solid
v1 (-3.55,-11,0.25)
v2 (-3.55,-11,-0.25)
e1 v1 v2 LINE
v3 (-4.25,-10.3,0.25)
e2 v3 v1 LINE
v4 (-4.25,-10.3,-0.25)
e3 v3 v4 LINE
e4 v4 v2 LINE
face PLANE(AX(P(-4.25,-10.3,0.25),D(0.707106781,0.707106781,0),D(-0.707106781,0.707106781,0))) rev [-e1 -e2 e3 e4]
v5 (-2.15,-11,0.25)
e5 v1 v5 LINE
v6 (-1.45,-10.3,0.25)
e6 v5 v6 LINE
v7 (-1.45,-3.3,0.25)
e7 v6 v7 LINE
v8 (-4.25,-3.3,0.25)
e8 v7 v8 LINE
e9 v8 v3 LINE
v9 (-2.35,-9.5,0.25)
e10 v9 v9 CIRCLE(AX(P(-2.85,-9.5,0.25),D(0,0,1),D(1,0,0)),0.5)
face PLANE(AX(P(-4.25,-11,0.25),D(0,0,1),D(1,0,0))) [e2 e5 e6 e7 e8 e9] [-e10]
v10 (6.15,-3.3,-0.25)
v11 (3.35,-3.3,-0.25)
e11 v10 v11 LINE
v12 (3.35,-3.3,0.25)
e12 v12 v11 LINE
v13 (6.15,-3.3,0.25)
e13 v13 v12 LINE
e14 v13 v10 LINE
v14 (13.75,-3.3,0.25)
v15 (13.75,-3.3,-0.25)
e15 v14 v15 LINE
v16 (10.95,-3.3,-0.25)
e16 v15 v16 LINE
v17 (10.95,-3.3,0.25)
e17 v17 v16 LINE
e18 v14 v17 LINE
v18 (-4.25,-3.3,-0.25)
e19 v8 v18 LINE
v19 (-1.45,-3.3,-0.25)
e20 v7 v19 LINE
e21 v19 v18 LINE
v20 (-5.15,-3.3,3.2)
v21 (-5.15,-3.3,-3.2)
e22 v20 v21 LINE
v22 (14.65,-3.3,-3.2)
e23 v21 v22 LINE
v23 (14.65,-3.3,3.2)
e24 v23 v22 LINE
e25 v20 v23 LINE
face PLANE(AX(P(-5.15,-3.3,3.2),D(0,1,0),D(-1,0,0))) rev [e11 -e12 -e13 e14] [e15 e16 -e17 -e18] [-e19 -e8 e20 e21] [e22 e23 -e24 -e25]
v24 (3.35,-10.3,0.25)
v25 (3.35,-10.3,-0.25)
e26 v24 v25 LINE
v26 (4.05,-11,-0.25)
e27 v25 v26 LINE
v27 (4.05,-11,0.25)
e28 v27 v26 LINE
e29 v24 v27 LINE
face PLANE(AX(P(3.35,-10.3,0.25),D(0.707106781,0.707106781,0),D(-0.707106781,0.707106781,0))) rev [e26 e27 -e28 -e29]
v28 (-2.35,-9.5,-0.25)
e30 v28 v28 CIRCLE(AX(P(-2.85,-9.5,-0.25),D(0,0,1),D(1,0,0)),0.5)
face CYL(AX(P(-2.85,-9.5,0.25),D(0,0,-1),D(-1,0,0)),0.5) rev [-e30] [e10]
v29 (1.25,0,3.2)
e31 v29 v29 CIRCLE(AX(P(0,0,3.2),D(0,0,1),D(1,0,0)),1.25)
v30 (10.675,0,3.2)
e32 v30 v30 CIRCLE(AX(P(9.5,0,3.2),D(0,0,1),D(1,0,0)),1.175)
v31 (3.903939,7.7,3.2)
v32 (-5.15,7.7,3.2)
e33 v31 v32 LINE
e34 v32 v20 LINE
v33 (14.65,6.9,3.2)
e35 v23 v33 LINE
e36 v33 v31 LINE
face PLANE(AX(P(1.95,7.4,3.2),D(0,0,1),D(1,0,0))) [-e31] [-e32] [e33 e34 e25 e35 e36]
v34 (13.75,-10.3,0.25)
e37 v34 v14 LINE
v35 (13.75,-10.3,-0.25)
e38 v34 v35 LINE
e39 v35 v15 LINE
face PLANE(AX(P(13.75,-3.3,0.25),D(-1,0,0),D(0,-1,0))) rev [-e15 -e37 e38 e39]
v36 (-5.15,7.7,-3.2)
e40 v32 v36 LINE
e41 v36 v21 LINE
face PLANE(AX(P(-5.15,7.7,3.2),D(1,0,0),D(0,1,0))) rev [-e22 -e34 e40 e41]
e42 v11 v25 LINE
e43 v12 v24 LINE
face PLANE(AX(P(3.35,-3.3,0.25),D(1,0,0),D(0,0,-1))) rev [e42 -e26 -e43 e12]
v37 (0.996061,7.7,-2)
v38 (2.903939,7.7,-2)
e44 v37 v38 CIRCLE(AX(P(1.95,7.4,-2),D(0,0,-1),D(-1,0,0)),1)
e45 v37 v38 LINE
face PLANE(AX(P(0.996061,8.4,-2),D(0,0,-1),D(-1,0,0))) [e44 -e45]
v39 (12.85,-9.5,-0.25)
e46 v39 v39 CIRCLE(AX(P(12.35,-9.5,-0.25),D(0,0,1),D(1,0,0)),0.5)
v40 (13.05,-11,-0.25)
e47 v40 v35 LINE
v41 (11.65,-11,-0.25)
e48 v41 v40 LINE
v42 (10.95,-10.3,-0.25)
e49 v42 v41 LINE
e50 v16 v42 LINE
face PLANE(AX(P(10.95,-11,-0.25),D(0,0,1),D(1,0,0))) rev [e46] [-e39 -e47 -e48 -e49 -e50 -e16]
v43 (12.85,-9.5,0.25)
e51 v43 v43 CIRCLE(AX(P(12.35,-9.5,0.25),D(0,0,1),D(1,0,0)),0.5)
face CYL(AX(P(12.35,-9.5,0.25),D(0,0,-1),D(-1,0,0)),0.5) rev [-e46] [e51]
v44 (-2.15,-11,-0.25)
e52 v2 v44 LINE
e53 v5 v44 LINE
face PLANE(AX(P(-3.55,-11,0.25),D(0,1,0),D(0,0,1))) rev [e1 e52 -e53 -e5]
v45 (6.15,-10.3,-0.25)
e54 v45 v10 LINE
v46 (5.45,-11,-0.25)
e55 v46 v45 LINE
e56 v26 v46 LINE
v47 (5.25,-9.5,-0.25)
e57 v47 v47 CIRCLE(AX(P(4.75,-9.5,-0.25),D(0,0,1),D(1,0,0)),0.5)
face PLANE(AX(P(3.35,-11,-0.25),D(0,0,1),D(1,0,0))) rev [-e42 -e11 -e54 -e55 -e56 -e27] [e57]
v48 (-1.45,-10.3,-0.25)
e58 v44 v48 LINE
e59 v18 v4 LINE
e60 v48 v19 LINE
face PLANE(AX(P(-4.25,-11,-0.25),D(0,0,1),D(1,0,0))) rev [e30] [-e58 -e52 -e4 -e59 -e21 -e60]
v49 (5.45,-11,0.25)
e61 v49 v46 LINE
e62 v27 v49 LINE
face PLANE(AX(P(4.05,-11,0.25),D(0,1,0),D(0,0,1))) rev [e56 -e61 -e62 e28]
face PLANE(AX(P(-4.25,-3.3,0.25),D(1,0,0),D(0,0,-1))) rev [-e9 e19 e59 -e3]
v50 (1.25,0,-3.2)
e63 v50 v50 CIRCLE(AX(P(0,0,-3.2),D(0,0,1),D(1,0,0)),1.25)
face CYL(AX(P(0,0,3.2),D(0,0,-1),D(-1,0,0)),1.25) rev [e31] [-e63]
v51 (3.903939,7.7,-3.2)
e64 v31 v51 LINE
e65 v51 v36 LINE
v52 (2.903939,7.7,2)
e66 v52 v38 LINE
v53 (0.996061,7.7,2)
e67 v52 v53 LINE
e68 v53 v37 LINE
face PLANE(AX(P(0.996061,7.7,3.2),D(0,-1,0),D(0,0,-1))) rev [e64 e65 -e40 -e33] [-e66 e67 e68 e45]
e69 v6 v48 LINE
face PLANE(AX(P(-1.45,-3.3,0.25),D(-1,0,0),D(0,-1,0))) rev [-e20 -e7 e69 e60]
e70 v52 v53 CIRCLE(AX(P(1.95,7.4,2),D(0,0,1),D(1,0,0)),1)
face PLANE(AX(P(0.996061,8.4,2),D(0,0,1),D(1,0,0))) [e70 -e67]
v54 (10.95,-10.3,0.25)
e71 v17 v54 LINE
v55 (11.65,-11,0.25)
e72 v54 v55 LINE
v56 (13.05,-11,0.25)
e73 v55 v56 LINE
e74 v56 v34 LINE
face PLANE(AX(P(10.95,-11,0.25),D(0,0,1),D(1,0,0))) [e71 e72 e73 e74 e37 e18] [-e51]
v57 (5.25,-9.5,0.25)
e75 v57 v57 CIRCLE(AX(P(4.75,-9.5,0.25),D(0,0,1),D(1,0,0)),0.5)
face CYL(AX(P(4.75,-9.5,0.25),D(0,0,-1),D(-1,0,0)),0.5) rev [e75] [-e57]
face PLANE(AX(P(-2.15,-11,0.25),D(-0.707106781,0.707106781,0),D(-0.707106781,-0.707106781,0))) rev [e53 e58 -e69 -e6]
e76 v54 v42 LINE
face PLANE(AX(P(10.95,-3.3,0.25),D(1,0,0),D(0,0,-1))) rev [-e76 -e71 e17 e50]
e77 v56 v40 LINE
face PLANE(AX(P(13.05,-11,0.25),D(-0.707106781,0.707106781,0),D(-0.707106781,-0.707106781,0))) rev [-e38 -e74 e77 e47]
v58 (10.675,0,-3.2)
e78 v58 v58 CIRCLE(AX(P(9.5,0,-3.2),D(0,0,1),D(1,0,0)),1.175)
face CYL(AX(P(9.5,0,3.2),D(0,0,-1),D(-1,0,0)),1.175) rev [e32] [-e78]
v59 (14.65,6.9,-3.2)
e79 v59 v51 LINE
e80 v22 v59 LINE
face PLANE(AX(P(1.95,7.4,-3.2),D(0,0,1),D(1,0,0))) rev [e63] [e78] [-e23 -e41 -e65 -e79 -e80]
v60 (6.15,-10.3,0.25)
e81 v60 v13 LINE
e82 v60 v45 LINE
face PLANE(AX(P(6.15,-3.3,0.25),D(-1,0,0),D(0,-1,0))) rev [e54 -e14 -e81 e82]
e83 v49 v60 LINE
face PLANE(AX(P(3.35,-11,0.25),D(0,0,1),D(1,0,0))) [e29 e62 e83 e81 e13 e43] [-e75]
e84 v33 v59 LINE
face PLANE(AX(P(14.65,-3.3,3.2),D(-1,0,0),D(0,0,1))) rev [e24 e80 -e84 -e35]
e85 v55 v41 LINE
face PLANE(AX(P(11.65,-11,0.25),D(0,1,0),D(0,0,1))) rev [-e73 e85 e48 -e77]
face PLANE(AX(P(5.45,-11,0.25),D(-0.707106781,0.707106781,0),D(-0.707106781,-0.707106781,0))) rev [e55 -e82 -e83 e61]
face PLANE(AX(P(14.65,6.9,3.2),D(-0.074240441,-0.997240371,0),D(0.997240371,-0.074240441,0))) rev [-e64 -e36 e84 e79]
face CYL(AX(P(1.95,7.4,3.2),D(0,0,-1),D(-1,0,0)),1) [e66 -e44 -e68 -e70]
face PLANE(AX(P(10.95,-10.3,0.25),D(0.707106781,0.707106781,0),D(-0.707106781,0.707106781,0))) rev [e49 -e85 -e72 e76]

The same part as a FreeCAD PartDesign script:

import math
import FreeCAD as App
import Part
import Sketcher

V = App.Vector


def add_polygon(sketch, points):
    """Adds a closed chain of lines whose ends are joined by coincident constraints."""
    first, n = sketch.GeometryCount, len(points)
    for a, b in zip(points, points[1:] + points[:1]):
        sketch.addGeometry(Part.LineSegment(App.Vector(*a, 0), App.Vector(*b, 0)), False)
    for i in range(n):
        sketch.addConstraint(Sketcher.Constraint("Coincident", first + i, 2, first + (i + 1) % n, 1))

doc = App.newDocument("Part")
params = doc.addObject("Spreadsheet::Sheet", "Params")
for row, (alias, value) in enumerate([
    ("sketch1_radius", "1 mm"),
    ("sketch1_diameter", "2.5 mm"),
    ("sketch1_diameter2", "2.35 mm"),
    ("sketch1_width", "1 mm"),
    ("sketch1_height", "11 mm"),
    ("pad1_length", "6.4 mm"),
    ("sketch2_diameter", "1 mm"),
    ("sketch2_height", "7 mm"),
    ("sketch2_width", "2.8 mm"),
    ("sketch2_width2", "1.4 mm"),
    ("pad2_length", "0.5 mm"),
    ("sketch3_height", "1.2 mm"),
], start=1):
    params.set(f"A{row}", alias)
    params.set(f"B{row}", "=" + value)
    params.setAlias(f"B{row}", alias)

body = doc.addObject("PartDesign::Body", "Body")

sketch1 = doc.addObject("Sketcher::SketchObject", "Sketch")
body.addObject(sketch1)
sketch1.AttachmentSupport = (doc.XY_Plane, [""])
sketch1.MapMode = "FlatFace"
sketch1.addGeometry([
    Part.LineSegment(V(-5.15, -3.3, 0), V(14.65, -3.3, 0)),
    Part.LineSegment(V(14.65, -3.3, 0), V(14.65, 6.9, 0)),
    Part.LineSegment(V(14.65, 6.9, 0), V(3.903939, 7.7, 0)),
    Part.LineSegment(V(3.903939, 7.7, 0), V(2.903939, 7.7, 0)),
    Part.ArcOfCircle(Part.Circle(V(1.95, 7.4, 0), V(0, 0, 1), 1), math.radians(17.457603), math.radians(162.542397)),
    Part.LineSegment(V(0.996061, 7.7, 0), V(-5.15, 7.7, 0)),
    Part.LineSegment(V(-5.15, 7.7, 0), V(-5.15, -3.3, 0)),
    Part.Circle(V(0, 0, 0), V(0, 0, 1), 1.25),
    Part.Circle(V(9.5, 0, 0), V(0, 0, 1), 1.175),
], False)
sketch1.addConstraint([
    Sketcher.Constraint("Coincident", 0, 2, 1, 1),
    Sketcher.Constraint("Coincident", 1, 2, 2, 1),
    Sketcher.Constraint("Coincident", 2, 2, 3, 1),
    Sketcher.Constraint("Coincident", 3, 2, 4, 1),
    Sketcher.Constraint("Coincident", 4, 2, 5, 1),
    Sketcher.Constraint("Coincident", 5, 2, 6, 1),
    Sketcher.Constraint("Coincident", 6, 2, 0, 1),
    Sketcher.Constraint("Horizontal", 0),
    Sketcher.Constraint("Vertical", 1),
    Sketcher.Constraint("Horizontal", 3),
    Sketcher.Constraint("Horizontal", 5),
    Sketcher.Constraint("Vertical", 6),
    Sketcher.Constraint("Coincident", 7, 3, -1, 1),
    Sketcher.Constraint("PointOnObject", 8, 3, -1),
    Sketcher.Constraint("Horizontal", 3, 2, 4, 2),
    Sketcher.Constraint("Radius", 4, 1.0),
    Sketcher.Constraint("Diameter", 7, 2.5),
    Sketcher.Constraint("Diameter", 8, 2.35),
    Sketcher.Constraint("DistanceX", 3, 2, 3, 1, 1.0),
    Sketcher.Constraint("DistanceY", 6, 2, 6, 1, 11.0),
    Sketcher.Constraint("DistanceX", 0, 1, 0, 2, 19.8),
    Sketcher.Constraint("DistanceY", 1, 1, 1, 2, 10.2),
    Sketcher.Constraint("DistanceY", -1, 1, 4, 3, 7.4),
    Sketcher.Constraint("DistanceX", -1, 1, 8, 3, 9.5),
    Sketcher.Constraint("DistanceY", 0, 2, -1, 1, 3.3),
    Sketcher.Constraint("DistanceX", 4, 3, 0, 2, 12.7),
    Sketcher.Constraint("DistanceX", -1, 1, 4, 3, 1.95),
])
sketch1.setExpression("Constraints[15]", "Params.sketch1_radius")
sketch1.setExpression("Constraints[16]", "Params.sketch1_diameter")
sketch1.setExpression("Constraints[17]", "Params.sketch1_diameter2")
sketch1.setExpression("Constraints[18]", "Params.sketch1_width")
sketch1.setExpression("Constraints[19]", "Params.sketch1_height")
pad1 = doc.addObject("PartDesign::Pad", "Pad")
body.addObject(pad1)
pad1.Profile = sketch1
pad1.setExpression("Length", "Params.pad1_length")
pad1.Midplane = True

sketch2 = doc.addObject("Sketcher::SketchObject", "Sketch001")
body.addObject(sketch2)
sketch2.AttachmentSupport = (doc.XY_Plane, [""])
sketch2.MapMode = "FlatFace"
add_polygon(sketch2, [(-1.45, -3.3), (-4.25, -3.3), (-4.25, -10.3), (-3.55, -11), (-2.15, -11), (-1.45, -10.3)])
sketch2.addGeometry(Part.Circle(V(-2.85, -9.5, 0), V(0, 0, 1), 0.5), False)
add_polygon(sketch2, [(6.15, -3.3), (3.35, -3.3), (3.35, -10.3), (4.05, -11), (5.45, -11), (6.15, -10.3)])
sketch2.addGeometry(Part.Circle(V(4.75, -9.5, 0), V(0, 0, 1), 0.5), False)
add_polygon(sketch2, [(13.75, -3.3), (10.95, -3.3), (10.95, -10.3), (11.65, -11), (13.05, -11), (13.75, -10.3)])
sketch2.addGeometry(Part.Circle(V(12.35, -9.5, 0), V(0, 0, 1), 0.5), False)
sketch2.addConstraint([
    Sketcher.Constraint("Horizontal", 0),
    Sketcher.Constraint("Vertical", 1),
    Sketcher.Constraint("Horizontal", 3),
    Sketcher.Constraint("Vertical", 5),
    Sketcher.Constraint("Horizontal", 7),
    Sketcher.Constraint("Vertical", 8),
    Sketcher.Constraint("Horizontal", 10),
    Sketcher.Constraint("Vertical", 12),
    Sketcher.Constraint("Horizontal", 14),
    Sketcher.Constraint("Vertical", 15),
    Sketcher.Constraint("Horizontal", 17),
    Sketcher.Constraint("Vertical", 19),
    Sketcher.Constraint("Equal", 6, 13),
    Sketcher.Constraint("Equal", 13, 20),
    Sketcher.Constraint("Perpendicular", 2, 4),
    Sketcher.Constraint("Perpendicular", 4, 9),
    Sketcher.Constraint("Perpendicular", 9, 11),
    Sketcher.Constraint("Perpendicular", 11, 16),
    Sketcher.Constraint("Perpendicular", 16, 18),
    Sketcher.Constraint("Horizontal", 6, 3, 13, 3),
    Sketcher.Constraint("Horizontal", 13, 3, 20, 3),
    Sketcher.Constraint("Horizontal", 1, 2, 4, 2),
    Sketcher.Constraint("Horizontal", 5, 2, 7, 2),
    Sketcher.Constraint("Horizontal", 4, 2, 8, 2),
    Sketcher.Constraint("Horizontal", 3, 2, 9, 2),
    Sketcher.Constraint("Horizontal", 8, 2, 11, 2),
    Sketcher.Constraint("Horizontal", 12, 2, 14, 2),
    Sketcher.Constraint("Horizontal", 11, 2, 15, 2),
    Sketcher.Constraint("Horizontal", 10, 2, 16, 2),
    Sketcher.Constraint("Horizontal", 15, 2, 18, 2),
    Sketcher.Constraint("Equal", 0, 7),
    Sketcher.Constraint("Equal", 7, 14),
    Sketcher.Constraint("Equal", 2, 4),
    Sketcher.Constraint("Diameter", 6, 1.0),
    Sketcher.Constraint("DistanceY", 1, 2, 1, 1, 7.0),
    Sketcher.Constraint("DistanceX", 0, 2, 0, 1, 2.8),
    Sketcher.Constraint("DistanceX", 3, 1, 3, 2, 1.4),
    Sketcher.Constraint("DistanceY", 2, 2, -1, 1, 11.0),
    Sketcher.Constraint("DistanceX", 0, 2, 13, 3, 9.0),
    Sketcher.Constraint("DistanceY", 6, 3, -1, 1, 9.5),
    Sketcher.Constraint("DistanceX", 6, 3, 13, 3, 7.6),
    Sketcher.Constraint("DistanceX", 13, 3, 20, 3, 7.6),
    Sketcher.Constraint("DistanceX", 5, 2, 7, 2, 4.8),
    Sketcher.Constraint("DistanceX", 12, 2, 14, 2, 4.8),
    Sketcher.Constraint("DistanceX", 6, 3, -1, 1, 2.85),
])
sketch2.setExpression("Constraints[51]", "Params.sketch2_diameter")
sketch2.setExpression("Constraints[52]", "Params.sketch2_height")
sketch2.setExpression("Constraints[53]", "Params.sketch2_width")
sketch2.setExpression("Constraints[54]", "Params.sketch2_width2")
pad2 = doc.addObject("PartDesign::Pad", "Pad001")
body.addObject(pad2)
pad2.Profile = sketch2
pad2.setExpression("Length", "Params.pad2_length")
pad2.Midplane = True

sketch3 = doc.addObject("Sketcher::SketchObject", "Sketch002")
body.addObject(sketch3)
sketch3.AttachmentSupport = (doc.XZ_Plane, [""])
sketch3.MapMode = "FlatFace"
sketch3.AttachmentOffset = App.Placement(V(0, 0, -7.7), App.Rotation())
add_polygon(sketch3, [(0.996061, -3.2), (0.996061, -2), (3.903939, -2), (3.903939, -3.2)])
add_polygon(sketch3, [(0.996061, 2), (0.996061, 3.2), (3.903939, 3.2), (3.903939, 2)])
sketch3.addConstraint([
    Sketcher.Constraint("Vertical", 0),
    Sketcher.Constraint("Horizontal", 1),
    Sketcher.Constraint("Vertical", 2),
    Sketcher.Constraint("Horizontal", 3),
    Sketcher.Constraint("Vertical", 4),
    Sketcher.Constraint("Horizontal", 5),
    Sketcher.Constraint("Vertical", 6),
    Sketcher.Constraint("Horizontal", 7),
    Sketcher.Constraint("Symmetric", 3, 2, 4, 2, -1),
    Sketcher.Constraint("Symmetric", 1, 2, 6, 2, -1),
    Sketcher.Constraint("DistanceY", 0, 1, 0, 2, 1.2),
    Sketcher.Constraint("DistanceY", 0, 2, -1, 1, 2.0),
    Sketcher.Constraint("DistanceX", 1, 1, 1, 2, 2.907878),
    Sketcher.Constraint("DistanceX", -1, 1, 0, 2, 0.996061),
])
sketch3.setExpression("Constraints[18]", "Params.sketch3_height")
pocket1 = doc.addObject("PartDesign::Pocket", "Pocket")
body.addObject(pocket1)
pocket1.Profile = sketch3
pocket1.Type = "ThroughAll"

doc.recompute()
